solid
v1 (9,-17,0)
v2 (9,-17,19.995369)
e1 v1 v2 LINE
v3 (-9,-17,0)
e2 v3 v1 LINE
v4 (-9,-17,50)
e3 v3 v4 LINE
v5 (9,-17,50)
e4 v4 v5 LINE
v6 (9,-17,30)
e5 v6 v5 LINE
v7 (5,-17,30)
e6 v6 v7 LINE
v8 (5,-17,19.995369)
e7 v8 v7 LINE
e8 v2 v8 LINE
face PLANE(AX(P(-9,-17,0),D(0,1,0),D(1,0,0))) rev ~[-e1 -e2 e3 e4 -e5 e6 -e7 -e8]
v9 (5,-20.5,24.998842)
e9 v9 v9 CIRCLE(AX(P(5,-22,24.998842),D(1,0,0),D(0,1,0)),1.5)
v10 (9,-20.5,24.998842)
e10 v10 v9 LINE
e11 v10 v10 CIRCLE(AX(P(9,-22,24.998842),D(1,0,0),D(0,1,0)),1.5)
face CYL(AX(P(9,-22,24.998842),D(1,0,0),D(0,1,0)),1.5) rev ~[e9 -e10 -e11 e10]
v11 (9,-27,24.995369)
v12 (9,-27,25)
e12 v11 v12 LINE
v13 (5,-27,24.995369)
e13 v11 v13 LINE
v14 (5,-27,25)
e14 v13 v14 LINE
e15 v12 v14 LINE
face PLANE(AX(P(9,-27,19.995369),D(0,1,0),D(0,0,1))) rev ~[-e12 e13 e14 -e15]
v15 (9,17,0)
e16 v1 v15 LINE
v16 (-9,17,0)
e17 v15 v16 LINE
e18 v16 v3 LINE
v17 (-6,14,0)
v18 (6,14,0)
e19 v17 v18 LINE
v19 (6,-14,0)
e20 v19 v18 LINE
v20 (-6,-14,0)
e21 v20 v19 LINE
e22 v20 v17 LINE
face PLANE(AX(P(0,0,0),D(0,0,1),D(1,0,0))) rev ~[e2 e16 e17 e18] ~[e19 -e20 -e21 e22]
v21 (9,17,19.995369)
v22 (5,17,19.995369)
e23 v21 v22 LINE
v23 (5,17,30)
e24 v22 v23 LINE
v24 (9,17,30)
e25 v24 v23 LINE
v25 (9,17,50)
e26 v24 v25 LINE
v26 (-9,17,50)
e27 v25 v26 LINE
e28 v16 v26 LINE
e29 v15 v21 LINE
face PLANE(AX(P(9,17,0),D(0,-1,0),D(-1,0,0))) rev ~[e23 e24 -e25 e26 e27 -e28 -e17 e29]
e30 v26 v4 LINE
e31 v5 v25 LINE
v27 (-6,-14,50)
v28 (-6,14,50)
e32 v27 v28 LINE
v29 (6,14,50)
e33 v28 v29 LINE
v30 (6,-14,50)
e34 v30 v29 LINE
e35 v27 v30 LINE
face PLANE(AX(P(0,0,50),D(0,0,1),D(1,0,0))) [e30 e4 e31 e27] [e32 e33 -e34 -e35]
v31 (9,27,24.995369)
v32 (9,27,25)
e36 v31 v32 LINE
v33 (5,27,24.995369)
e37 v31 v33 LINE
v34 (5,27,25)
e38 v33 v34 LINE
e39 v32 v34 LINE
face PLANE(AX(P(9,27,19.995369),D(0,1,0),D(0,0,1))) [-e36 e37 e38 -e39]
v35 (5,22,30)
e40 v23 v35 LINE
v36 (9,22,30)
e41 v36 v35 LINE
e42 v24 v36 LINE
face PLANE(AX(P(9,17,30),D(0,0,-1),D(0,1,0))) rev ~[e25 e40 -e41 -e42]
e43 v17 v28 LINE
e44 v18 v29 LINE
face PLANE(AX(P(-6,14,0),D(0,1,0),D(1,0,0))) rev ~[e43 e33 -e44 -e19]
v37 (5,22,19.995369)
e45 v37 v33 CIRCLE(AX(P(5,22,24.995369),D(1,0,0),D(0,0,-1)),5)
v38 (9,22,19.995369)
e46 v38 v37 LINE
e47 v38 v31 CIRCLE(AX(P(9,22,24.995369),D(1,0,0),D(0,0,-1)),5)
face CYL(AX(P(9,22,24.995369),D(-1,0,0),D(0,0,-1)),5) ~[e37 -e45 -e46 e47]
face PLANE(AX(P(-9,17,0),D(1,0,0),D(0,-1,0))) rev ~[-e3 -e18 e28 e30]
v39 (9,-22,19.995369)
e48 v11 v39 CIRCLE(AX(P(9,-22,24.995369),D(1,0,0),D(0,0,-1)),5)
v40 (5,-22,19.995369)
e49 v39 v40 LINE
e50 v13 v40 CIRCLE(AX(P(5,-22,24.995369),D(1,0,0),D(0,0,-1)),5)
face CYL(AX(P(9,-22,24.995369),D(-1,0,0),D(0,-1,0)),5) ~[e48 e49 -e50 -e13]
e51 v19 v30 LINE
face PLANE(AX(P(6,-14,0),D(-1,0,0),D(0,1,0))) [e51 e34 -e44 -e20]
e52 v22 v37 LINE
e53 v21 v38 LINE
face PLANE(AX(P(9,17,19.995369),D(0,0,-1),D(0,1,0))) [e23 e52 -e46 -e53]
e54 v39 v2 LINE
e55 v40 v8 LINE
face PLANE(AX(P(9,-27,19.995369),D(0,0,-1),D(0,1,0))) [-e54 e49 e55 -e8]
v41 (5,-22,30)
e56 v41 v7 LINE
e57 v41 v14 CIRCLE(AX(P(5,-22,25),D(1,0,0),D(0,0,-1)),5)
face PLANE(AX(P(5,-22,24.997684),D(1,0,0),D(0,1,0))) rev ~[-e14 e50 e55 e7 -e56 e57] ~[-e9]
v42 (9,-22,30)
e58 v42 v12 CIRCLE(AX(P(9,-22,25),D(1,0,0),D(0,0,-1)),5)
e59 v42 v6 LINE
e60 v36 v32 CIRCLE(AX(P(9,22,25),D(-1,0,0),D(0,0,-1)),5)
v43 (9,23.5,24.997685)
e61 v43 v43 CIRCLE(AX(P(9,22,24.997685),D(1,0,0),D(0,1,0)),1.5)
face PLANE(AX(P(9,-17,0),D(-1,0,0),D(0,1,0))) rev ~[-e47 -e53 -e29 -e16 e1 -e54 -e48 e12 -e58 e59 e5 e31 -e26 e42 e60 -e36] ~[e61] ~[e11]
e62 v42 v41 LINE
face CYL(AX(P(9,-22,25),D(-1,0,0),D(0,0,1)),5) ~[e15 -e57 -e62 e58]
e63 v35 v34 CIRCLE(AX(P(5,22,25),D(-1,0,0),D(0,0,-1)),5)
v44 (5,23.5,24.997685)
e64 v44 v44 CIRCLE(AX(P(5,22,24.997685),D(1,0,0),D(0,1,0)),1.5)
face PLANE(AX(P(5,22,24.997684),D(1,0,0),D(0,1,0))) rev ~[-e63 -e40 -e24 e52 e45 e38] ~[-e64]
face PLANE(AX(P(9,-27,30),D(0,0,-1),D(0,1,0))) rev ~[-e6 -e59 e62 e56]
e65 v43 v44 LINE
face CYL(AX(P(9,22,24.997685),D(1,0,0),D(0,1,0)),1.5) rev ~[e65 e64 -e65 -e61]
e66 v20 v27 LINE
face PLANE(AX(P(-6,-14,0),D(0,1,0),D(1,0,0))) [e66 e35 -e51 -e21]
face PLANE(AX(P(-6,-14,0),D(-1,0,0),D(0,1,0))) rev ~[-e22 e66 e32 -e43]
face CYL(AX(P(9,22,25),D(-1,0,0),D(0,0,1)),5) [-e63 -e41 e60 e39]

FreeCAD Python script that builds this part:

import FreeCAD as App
import Part
import Sketcher
from FreeCAD import Vector


def edges_at(feature, points):
    """Names of the edges that pass closest to the given points."""
    edges = feature.Shape.Edges
    near = lambda p: min(range(len(edges)), key=lambda i: edges[i].distToShape(Part.Vertex(*p))[0])
    return sorted({f"Edge{near(p) + 1}" for p in points})

doc = App.newDocument("Part")
body = doc.addObject("PartDesign::Body", "Body")

# Sketch on XY plane
sketch1 = body.newObject("Sketcher::SketchObject", "Sketch")
sketch1.AttachmentSupport = (doc.getObject("XY_Plane"), [""])
sketch1.MapMode = "FlatFace"
sketch1.addGeometry(Part.LineSegment(Vector(-9, -17, 0), Vector(9, -17, 0)), False)
sketch1.addGeometry(Part.LineSegment(Vector(9, -17, 0), Vector(9, 17, 0)), False)
sketch1.addGeometry(Part.LineSegment(Vector(9, 17, 0), Vector(-9, 17, 0)), False)
sketch1.addGeometry(Part.LineSegment(Vector(-9, 17, 0), Vector(-9, -17, 0)), False)
sketch1.addGeometry(Part.LineSegment(Vector(6, -14, 0), Vector(-6, -14, 0)), False)
sketch1.addGeometry(Part.LineSegment(Vector(-6, -14, 0), Vector(-6, 14, 0)), False)
sketch1.addGeometry(Part.LineSegment(Vector(-6, 14, 0), Vector(6, 14, 0)), False)
sketch1.addGeometry(Part.LineSegment(Vector(6, 14, 0), Vector(6, -14, 0)), False)
sketch1.addConstraint(Sketcher.Constraint("Coincident", 0, 2, 1, 1))
sketch1.addConstraint(Sketcher.Constraint("Coincident", 1, 2, 2, 1))
sketch1.addConstraint(Sketcher.Constraint("Coincident", 2, 2, 3, 1))
sketch1.addConstraint(Sketcher.Constraint("Coincident", 3, 2, 0, 1))
sketch1.addConstraint(Sketcher.Constraint("Coincident", 4, 2, 5, 1))
sketch1.addConstraint(Sketcher.Constraint("Coincident", 5, 2, 6, 1))
sketch1.addConstraint(Sketcher.Constraint("Coincident", 6, 2, 7, 1))
sketch1.addConstraint(Sketcher.Constraint("Coincident", 7, 2, 4, 1))
sketch1.addConstraint(Sketcher.Constraint("Horizontal", 0))
sketch1.addConstraint(Sketcher.Constraint("Vertical", 1))
sketch1.addConstraint(Sketcher.Constraint("Horizontal", 2))
sketch1.addConstraint(Sketcher.Constraint("Vertical", 3))
sketch1.addConstraint(Sketcher.Constraint("Horizontal", 4))
sketch1.addConstraint(Sketcher.Constraint("Vertical", 5))
sketch1.addConstraint(Sketcher.Constraint("Horizontal", 6))
sketch1.addConstraint(Sketcher.Constraint("Vertical", 7))
sketch1.addConstraint(Sketcher.Constraint("Symmetric", 0, 2, 2, 2, -1, 1))
sketch1.addConstraint(Sketcher.Constraint("Symmetric", 4, 2, 6, 2, -1, 1))
sketch1.addConstraint(Sketcher.Constraint("DistanceX", 0, 1, 0, 2, 18.0))
sketch1.addConstraint(Sketcher.Constraint("DistanceX", 4, 2, 4, 1, 12.0))
sketch1.addConstraint(Sketcher.Constraint("DistanceY", 1, 1, 1, 2, 34.0))
sketch1.addConstraint(Sketcher.Constraint("DistanceY", 5, 1, 5, 2, 28.0))
pad1 = body.newObject("PartDesign::Pad", "Pad")
pad1.Profile = sketch1
pad1.Length = 50

# Sketch on YZ plane
sketch2 = body.newObject("Sketcher::SketchObject", "Sketch001")
sketch2.AttachmentSupport = (doc.getObject("YZ_Plane"), [""])
sketch2.MapMode = "FlatFace"
sketch2.AttachmentOffset = App.Placement(Vector(0, 0, 9), App.Rotation())
sketch2.addGeometry(Part.LineSegment(Vector(-27, 30, 0), Vector(-27, 20, 0)), False)
sketch2.addGeometry(Part.LineSegment(Vector(-27, 20, 0), Vector(-17, 20, 0)), False)
sketch2.addGeometry(Part.LineSegment(Vector(-17, 20, 0), Vector(-17, 30, 0)), False)
sketch2.addGeometry(Part.LineSegment(Vector(-17, 30, 0), Vector(-27, 30, 0)), False)
sketch2.addGeometry(Part.Circle(Vector(-22, 25, 0), Vector(0, 0, 1), 1.5), False)
sketch2.addGeometry(Part.LineSegment(Vector(17, 30, 0), Vector(17, 20, 0)), False)
sketch2.addGeometry(Part.LineSegment(Vector(17, 20, 0), Vector(27, 20, 0)), False)
sketch2.addGeometry(Part.LineSegment(Vector(27, 20, 0), Vector(27, 30, 0)), False)
sketch2.addGeometry(Part.LineSegment(Vector(27, 30, 0), Vector(17, 30, 0)), False)
sketch2.addGeometry(Part.Circle(Vector(22, 25, 0), Vector(0, 0, 1), 1.5), False)
sketch2.addConstraint(Sketcher.Constraint("Coincident", 0, 2, 1, 1))
sketch2.addConstraint(Sketcher.Constraint("Coincident", 1, 2, 2, 1))
sketch2.addConstraint(Sketcher.Constraint("Coincident", 2, 2, 3, 1))
sketch2.addConstraint(Sketcher.Constraint("Coincident", 3, 2, 0, 1))
sketch2.addConstraint(Sketcher.Constraint("Coincident", 5, 2, 6, 1))
sketch2.addConstraint(Sketcher.Constraint("Coincident", 6, 2, 7, 1))
sketch2.addConstraint(Sketcher.Constraint("Coincident", 7, 2, 8, 1))
sketch2.addConstraint(Sketcher.Constraint("Coincident", 8, 2, 5, 1))
sketch2.addConstraint(Sketcher.Constraint("Vertical", 0))
sketch2.addConstraint(Sketcher.Constraint("Horizontal", 1))
sketch2.addConstraint(Sketcher.Constraint("Vertical", 2))
sketch2.addConstraint(Sketcher.Constraint("Horizontal", 3))
sketch2.addConstraint(Sketcher.Constraint("Vertical", 5))
sketch2.addConstraint(Sketcher.Constraint("Horizontal", 6))
sketch2.addConstraint(Sketcher.Constraint("Vertical", 7))
sketch2.addConstraint(Sketcher.Constraint("Horizontal", 8))
sketch2.addConstraint(Sketcher.Constraint("Equal", 4, 9))
sketch2.addConstraint(Sketcher.Constraint("Symmetric", 1, 2, 5, 2, -2))
sketch2.addConstraint(Sketcher.Constraint("Symmetric", 3, 2, 7, 2, -2))
sketch2.addConstraint(Sketcher.Constraint("Diameter", 4, 3.0))
sketch2.addConstraint(Sketcher.Constraint("DistanceX", 1, 1, 1, 2, 10.0))
sketch2.addConstraint(Sketcher.Constraint("DistanceX", 4, 3, -1, 1, 22.0))
sketch2.addConstraint(Sketcher.Constraint("DistanceX", -1, 1, 9, 3, 22.0))
sketch2.addConstraint(Sketcher.Constraint("DistanceX", 0, 2, -1, 1, 27.0))
sketch2.addConstraint(Sketcher.Constraint("DistanceY", -1, 1, 2, 2, 30.0))
sketch2.addConstraint(Sketcher.Constraint("DistanceY", 0, 2, 0, 1, 10.004631))
sketch2.addConstraint(Sketcher.Constraint("DistanceY", -1, 1, 4, 3, 24.998842))
sketch2.addConstraint(Sketcher.Constraint("DistanceY", -1, 1, 9, 3, 24.997685))
pad2 = body.newObject("PartDesign::Pad", "Pad001")
pad2.Profile = sketch2
pad2.Length = 4
pad2.Reversed = True
doc.recompute()

fillet = body.newObject("PartDesign::Fillet", "Fillet")
fillet.Base = (pad2, edges_at(pad2, [(7, 27, 19.995), (7, 27, 30)]))
fillet.Radius = 5
doc.recompute()

fillet2 = body.newObject("PartDesign::Fillet", "Fillet001")
fillet2.Base = (fillet, edges_at(fillet, [(7, -27, 19.995), (7, -27, 30)]))
fillet2.Radius = 5

doc.recompute()
